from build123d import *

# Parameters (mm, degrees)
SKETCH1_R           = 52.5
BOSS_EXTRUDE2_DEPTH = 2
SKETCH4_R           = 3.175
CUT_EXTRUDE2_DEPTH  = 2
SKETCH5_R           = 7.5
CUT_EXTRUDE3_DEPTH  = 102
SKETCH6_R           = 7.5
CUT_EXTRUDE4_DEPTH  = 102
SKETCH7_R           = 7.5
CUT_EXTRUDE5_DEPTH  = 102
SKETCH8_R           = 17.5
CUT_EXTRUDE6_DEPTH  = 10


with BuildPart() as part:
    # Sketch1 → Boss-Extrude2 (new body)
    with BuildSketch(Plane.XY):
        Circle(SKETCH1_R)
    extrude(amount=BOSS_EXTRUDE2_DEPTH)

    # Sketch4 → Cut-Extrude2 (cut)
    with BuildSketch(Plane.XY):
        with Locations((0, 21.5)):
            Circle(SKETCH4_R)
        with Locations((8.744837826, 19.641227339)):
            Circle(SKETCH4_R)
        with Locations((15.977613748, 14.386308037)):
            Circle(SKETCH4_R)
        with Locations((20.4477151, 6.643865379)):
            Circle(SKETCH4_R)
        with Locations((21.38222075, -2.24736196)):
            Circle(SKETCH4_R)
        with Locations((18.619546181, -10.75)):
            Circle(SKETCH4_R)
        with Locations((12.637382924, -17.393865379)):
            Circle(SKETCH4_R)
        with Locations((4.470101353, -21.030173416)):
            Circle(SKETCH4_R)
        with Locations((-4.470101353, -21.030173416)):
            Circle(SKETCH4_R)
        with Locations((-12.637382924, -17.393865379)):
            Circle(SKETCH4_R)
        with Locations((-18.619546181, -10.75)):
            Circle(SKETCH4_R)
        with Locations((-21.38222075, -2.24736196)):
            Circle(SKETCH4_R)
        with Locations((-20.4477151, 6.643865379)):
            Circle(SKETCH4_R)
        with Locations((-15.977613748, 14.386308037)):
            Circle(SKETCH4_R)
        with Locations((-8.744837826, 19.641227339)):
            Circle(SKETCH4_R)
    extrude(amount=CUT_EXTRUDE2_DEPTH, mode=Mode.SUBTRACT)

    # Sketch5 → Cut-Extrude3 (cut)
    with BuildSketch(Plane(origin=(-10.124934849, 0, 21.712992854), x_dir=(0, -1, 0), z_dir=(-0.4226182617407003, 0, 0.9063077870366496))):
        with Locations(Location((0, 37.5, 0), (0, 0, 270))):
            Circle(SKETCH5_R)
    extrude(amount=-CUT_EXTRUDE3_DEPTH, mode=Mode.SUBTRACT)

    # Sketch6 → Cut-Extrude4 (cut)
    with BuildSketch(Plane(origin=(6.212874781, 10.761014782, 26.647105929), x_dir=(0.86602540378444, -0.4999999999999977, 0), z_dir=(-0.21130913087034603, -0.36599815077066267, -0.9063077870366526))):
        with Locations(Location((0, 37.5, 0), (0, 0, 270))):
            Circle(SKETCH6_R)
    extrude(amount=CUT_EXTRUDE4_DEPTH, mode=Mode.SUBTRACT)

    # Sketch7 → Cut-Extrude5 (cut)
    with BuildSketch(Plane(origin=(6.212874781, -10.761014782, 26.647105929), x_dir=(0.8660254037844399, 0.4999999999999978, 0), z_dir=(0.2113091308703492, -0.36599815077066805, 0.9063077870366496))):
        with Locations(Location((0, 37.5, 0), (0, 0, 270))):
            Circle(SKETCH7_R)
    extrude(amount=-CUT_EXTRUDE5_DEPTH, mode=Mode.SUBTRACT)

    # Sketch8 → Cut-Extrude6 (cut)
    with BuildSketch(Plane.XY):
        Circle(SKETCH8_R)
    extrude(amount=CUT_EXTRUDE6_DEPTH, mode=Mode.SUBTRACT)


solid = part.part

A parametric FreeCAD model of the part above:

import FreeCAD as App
import Part
import Sketcher
Q = App.Units.Quantity

doc = App.newDocument("Part")
params = doc.addObject("Spreadsheet::Sheet", "Params")
for row, (alias, value) in enumerate([
    ("sketch1_diameter", "105 mm"),
    ("pad1_length", "2 mm"),
    ("sketch2_diameter", "6.35 mm"),
    ("pocket1_length", "2 mm"),
    ("sketch3_diameter", "15 mm"),
    ("pocket2_length", "102 mm"),
    ("sketch4_diameter", "15 mm"),
    ("pocket3_length", "102 mm"),
    ("sketch5_diameter", "15 mm"),
    ("pocket4_length", "102 mm"),
    ("sketch6_diameter", "35 mm"),
    ("pocket5_length", "10 mm"),
], start=1):
    params.set(f"A{row}", alias)
    params.set(f"B{row}", "=" + value)
    params.setAlias(f"B{row}", alias)

body = doc.addObject("PartDesign::Body", "Body")

sketch1 = body.newObject("Sketcher::SketchObject", "Sketch")
sketch1.AttachmentSupport = (doc.getObject("XY_Plane"), [""])
sketch1.MapMode = "FlatFace"
sketch1.addGeometry(Part.Circle(App.Vector(0, 0, 0), App.Vector(0, 0, 1), 52.5), False)
sketch1.addConstraint([
    Sketcher.Constraint("Coincident", 0, 3, -1, 1),
    Sketcher.Constraint("Diameter", 0, Q("105 mm")),
])
sketch1.setExpression("Constraints[1]", "Params.sketch1_diameter")
pad1 = body.newObject("PartDesign::Pad", "Pad")
pad1.Profile = sketch1
pad1.setExpression("Length", "Params.pad1_length")

sketch2 = body.newObject("Sketcher::SketchObject", "Sketch001")
sketch2.AttachmentSupport = (doc.getObject("XY_Plane"), [""])
sketch2.MapMode = "FlatFace"
sketch2.addGeometry([
    Part.Circle(App.Vector(0, 21.5, 0), App.Vector(0, 0, 1), 3.175),
    Part.Circle(App.Vector(8.744838, 19.641227, 0), App.Vector(0, 0, 1), 3.175),
    Part.Circle(App.Vector(15.977614, 14.386308, 0), App.Vector(0, 0, 1), 3.175),
    Part.Circle(App.Vector(20.447715, 6.643865, 0), App.Vector(0, 0, 1), 3.175),
    Part.Circle(App.Vector(21.382221, -2.247362, 0), App.Vector(0, 0, 1), 3.175),
    Part.Circle(App.Vector(18.619546, -10.75, 0), App.Vector(0, 0, 1), 3.175),
    Part.Circle(App.Vector(12.637383, -17.393865, 0), App.Vector(0, 0, 1), 3.175),
    Part.Circle(App.Vector(4.470101, -21.030173, 0), App.Vector(0, 0, 1), 3.175),
    Part.Circle(App.Vector(-4.470101, -21.030173, 0), App.Vector(0, 0, 1), 3.175),
    Part.Circle(App.Vector(-12.637383, -17.393865, 0), App.Vector(0, 0, 1), 3.175),
    Part.Circle(App.Vector(-18.619546, -10.75, 0), App.Vector(0, 0, 1), 3.175),
    Part.Circle(App.Vector(-21.382221, -2.247362, 0), App.Vector(0, 0, 1), 3.175),
    Part.Circle(App.Vector(-20.447715, 6.643865, 0), App.Vector(0, 0, 1), 3.175),
    Part.Circle(App.Vector(-15.977614, 14.386308, 0), App.Vector(0, 0, 1), 3.175),
    Part.Circle(App.Vector(-8.744838, 19.641227, 0), App.Vector(0, 0, 1), 3.175),
], False)
sketch2.addConstraint([
    Sketcher.Constraint("Equal", 0, 1),
    Sketcher.Constraint("Equal", 1, 2),
    Sketcher.Constraint("Equal", 2, 3),
    Sketcher.Constraint("Equal", 3, 4),
    Sketcher.Constraint("Equal", 4, 5),
    Sketcher.Constraint("Equal", 5, 6),
    Sketcher.Constraint("Equal", 6, 7),
    Sketcher.Constraint("Equal", 7, 8),
    Sketcher.Constraint("Equal", 8, 9),
    Sketcher.Constraint("Equal", 9, 10),
    Sketcher.Constraint("Equal", 10, 11),
    Sketcher.Constraint("Equal", 11, 12),
    Sketcher.Constraint("Equal", 12, 13),
    Sketcher.Constraint("Equal", 13, 14),
    Sketcher.Constraint("Symmetric", 7, 3, 8, 3, -2),
    Sketcher.Constraint("Symmetric", 6, 3, 9, 3, -2),
    Sketcher.Constraint("Symmetric", 5, 3, 10, 3, -2),
    Sketcher.Constraint("Symmetric", 4, 3, 11, 3, -2),
    Sketcher.Constraint("Symmetric", 3, 3, 12, 3, -2),
    Sketcher.Constraint("Symmetric", 2, 3, 13, 3, -2),
    Sketcher.Constraint("Symmetric", 1, 3, 14, 3, -2),
    Sketcher.Constraint("PointOnObject", 0, 3, -2),
    Sketcher.Constraint("Diameter", 0, Q("6.35 mm")),
    Sketcher.Constraint("DistanceY", -1, 1, 0, 3, Q("21.5 mm")),
    Sketcher.Constraint("DistanceY", 5, 3, -1, 1, Q("10.75 mm")),
    Sketcher.Constraint("DistanceX", -1, 1, 7, 3, Q("4.470101 mm")),
    Sketcher.Constraint("DistanceX", 2, 3, 3, 3, Q("4.470101 mm")),
    Sketcher.Constraint("DistanceY", -1, 1, 2, 3, Q("14.386308 mm")),
    Sketcher.Constraint("DistanceX", -1, 1, 4, 3, Q("21.382221 mm")),
    Sketcher.Constraint("DistanceY", 4, 3, -1, 1, Q("2.247362 mm")),
    Sketcher.Constraint("DistanceY", 2, 3, 1, 3, Q("5.254919 mm")),
    Sketcher.Constraint("DistanceY", 3, 3, 1, 3, Q("12.997362 mm")),
    Sketcher.Constraint("DistanceX", 5, 3, 3, 3, Q("1.828169 mm")),
    Sketcher.Constraint("DistanceX", 1, 3, 5, 3, Q("9.874708 mm")),
    Sketcher.Constraint("DistanceY", 6, 3, 3, 3, Q("24.037731 mm")),
    Sketcher.Constraint("DistanceX", 6, 3, 2, 3, Q("3.340231 mm")),
    Sketcher.Constraint("DistanceX", 7, 3, 6, 3, Q("8.167282 mm")),
    Sketcher.Constraint("DistanceY", 7, 3, 6, 3, Q("3.636308 mm")),
])
sketch2.setExpression("Constraints[22]", "Params.sketch2_diameter")
pocket1 = body.newObject("PartDesign::Pocket", "Pocket")
pocket1.Profile = sketch2
pocket1.setExpression("Length", "Params.pocket1_length")
pocket1.Reversed = True

sketch3 = body.newObject("Sketcher::SketchObject", "Sketch002")
sketch3.Placement = App.Placement(App.Vector(-10.124935, 0, 21.712993), App.Rotation(App.Vector(0, -1, 0), App.Vector(0.906307787, 0, 0.422618262), App.Vector(-0.422618262, 0, 0.906307787), "ZXY"))
sketch3.addGeometry(Part.Circle(App.Vector(0, 37.5, 0), App.Vector(0, 0, 1), 7.5), False)
sketch3.addConstraint([
    Sketcher.Constraint("PointOnObject", 0, 3, -2),
    Sketcher.Constraint("Diameter", 0, Q("15 mm")),
    Sketcher.Constraint("DistanceY", -1, 1, 0, 3, Q("37.5 mm")),
])
sketch3.setExpression("Constraints[1]", "Params.sketch3_diameter")
pocket2 = body.newObject("PartDesign::Pocket", "Pocket001")
pocket2.Profile = sketch3
pocket2.setExpression("Length", "Params.pocket2_length")

sketch4 = body.newObject("Sketcher::SketchObject", "Sketch003")
sketch4.Placement = App.Placement(App.Vector(6.212875, 10.761015, 26.647106), App.Rotation(App.Vector(0.866025404, -0.5, 0), App.Vector(-0.453153894, -0.784885567, 0.422618262), App.Vector(-0.211309131, -0.365998151, -0.906307787), "ZXY"))
sketch4.addGeometry(Part.Circle(App.Vector(0, 37.5, 0), App.Vector(0, 0, 1), 7.5), False)
sketch4.addConstraint([
    Sketcher.Constraint("PointOnObject", 0, 3, -2),
    Sketcher.Constraint("Diameter", 0, Q("15 mm")),
    Sketcher.Constraint("DistanceY", -1, 1, 0, 3, Q("37.5 mm")),
])
sketch4.setExpression("Constraints[1]", "Params.sketch4_diameter")
pocket3 = body.newObject("PartDesign::Pocket", "Pocket002")
pocket3.Profile = sketch4
pocket3.setExpression("Length", "Params.pocket3_length")
pocket3.Reversed = True

sketch5 = body.newObject("Sketcher::SketchObject", "Sketch004")
sketch5.Placement = App.Placement(App.Vector(6.212875, -10.761015, 26.647106), App.Rotation(App.Vector(0.866025404, 0.5, 0), App.Vector(-0.453153894, 0.784885567, 0.422618262), App.Vector(0.211309131, -0.365998151, 0.906307787), "ZXY"))
sketch5.addGeometry(Part.Circle(App.Vector(0, 37.5, 0), App.Vector(0, 0, 1), 7.5), False)
sketch5.addConstraint([
    Sketcher.Constraint("PointOnObject", 0, 3, -2),
    Sketcher.Constraint("Diameter", 0, Q("15 mm")),
    Sketcher.Constraint("DistanceY", -1, 1, 0, 3, Q("37.5 mm")),
])
sketch5.setExpression("Constraints[1]", "Params.sketch5_diameter")
pocket4 = body.newObject("PartDesign::Pocket", "Pocket003")
pocket4.Profile = sketch5
pocket4.setExpression("Length", "Params.pocket4_length")

sketch6 = body.newObject("Sketcher::SketchObject", "Sketch005")
sketch6.AttachmentSupport = (doc.getObject("XY_Plane"), [""])
sketch6.MapMode = "FlatFace"
sketch6.addGeometry(Part.Circle(App.Vector(0, 0, 0), App.Vector(0, 0, 1), 17.5), False)
sketch6.addConstraint([
    Sketcher.Constraint("Coincident", 0, 3, -1, 1),
    Sketcher.Constraint("Diameter", 0, Q("35 mm")),
])
sketch6.setExpression("Constraints[1]", "Params.sketch6_diameter")
pocket5 = body.newObject("PartDesign::Pocket", "Pocket004")
pocket5.Profile = sketch6
pocket5.setExpression("Length", "Params.pocket5_length")
pocket5.Reversed = True

doc.recompute()
